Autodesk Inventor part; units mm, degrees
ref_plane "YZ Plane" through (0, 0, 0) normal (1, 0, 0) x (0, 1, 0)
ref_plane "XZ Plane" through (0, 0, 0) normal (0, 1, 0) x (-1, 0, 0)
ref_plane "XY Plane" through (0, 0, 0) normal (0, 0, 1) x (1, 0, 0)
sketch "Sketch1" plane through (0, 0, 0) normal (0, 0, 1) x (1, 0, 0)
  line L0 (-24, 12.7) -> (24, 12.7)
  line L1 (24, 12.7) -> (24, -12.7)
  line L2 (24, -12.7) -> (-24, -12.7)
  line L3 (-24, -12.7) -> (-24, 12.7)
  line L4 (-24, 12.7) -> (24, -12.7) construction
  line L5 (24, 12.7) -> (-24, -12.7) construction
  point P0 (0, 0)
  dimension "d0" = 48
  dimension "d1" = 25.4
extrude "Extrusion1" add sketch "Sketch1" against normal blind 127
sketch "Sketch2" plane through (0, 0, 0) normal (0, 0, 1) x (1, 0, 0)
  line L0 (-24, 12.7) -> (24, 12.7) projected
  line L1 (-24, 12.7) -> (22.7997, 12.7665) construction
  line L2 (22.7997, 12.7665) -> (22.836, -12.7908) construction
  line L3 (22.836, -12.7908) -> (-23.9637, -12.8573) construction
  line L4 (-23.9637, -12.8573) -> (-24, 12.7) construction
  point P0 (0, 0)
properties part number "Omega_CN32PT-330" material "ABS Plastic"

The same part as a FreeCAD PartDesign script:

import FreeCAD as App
import Part
import Sketcher
Q = App.Units.Quantity


def add_polygon(sketch, points):
    """Adds a closed chain of lines whose ends are joined by coincident constraints."""
    first, n = sketch.GeometryCount, len(points)
    for a, b in zip(points, points[1:] + points[:1]):
        sketch.addGeometry(Part.LineSegment(App.Vector(*a, 0), App.Vector(*b, 0)), False)
    for i in range(n):
        sketch.addConstraint(Sketcher.Constraint("Coincident", first + i, 2, first + (i + 1) % n, 1))

doc = App.newDocument("Part")
body = doc.addObject("PartDesign::Body", "Body")

# Sketch on XY plane
sketch1 = body.newObject("Sketcher::SketchObject", "Sketch")
sketch1.AttachmentSupport = (doc.getObject("XY_Plane"), [""])
sketch1.MapMode = "FlatFace"
add_polygon(sketch1, [(24, 12.7), (-24, 12.7), (-24, -12.7), (24, -12.7)])  # lines 0-3
sketch1.addConstraint(Sketcher.Constraint("Horizontal", 0))
sketch1.addConstraint(Sketcher.Constraint("Vertical", 1))
sketch1.addConstraint(Sketcher.Constraint("Horizontal", 2))
sketch1.addConstraint(Sketcher.Constraint("Vertical", 3))
sketch1.addConstraint(Sketcher.Constraint("Symmetric", 0, 2, 2, 2, -1, 1))
sketch1.addConstraint(Sketcher.Constraint("DistanceY", 1, 2, 1, 1, Q("1 in")))
sketch1.addConstraint(Sketcher.Constraint("DistanceX", 0, 2, 0, 1, 48.0))
pad1 = body.newObject("PartDesign::Pad", "Pad")
pad1.Profile = sketch1
pad1.Length = Q("5 in")
pad1.Reversed = True

doc.recompute()
